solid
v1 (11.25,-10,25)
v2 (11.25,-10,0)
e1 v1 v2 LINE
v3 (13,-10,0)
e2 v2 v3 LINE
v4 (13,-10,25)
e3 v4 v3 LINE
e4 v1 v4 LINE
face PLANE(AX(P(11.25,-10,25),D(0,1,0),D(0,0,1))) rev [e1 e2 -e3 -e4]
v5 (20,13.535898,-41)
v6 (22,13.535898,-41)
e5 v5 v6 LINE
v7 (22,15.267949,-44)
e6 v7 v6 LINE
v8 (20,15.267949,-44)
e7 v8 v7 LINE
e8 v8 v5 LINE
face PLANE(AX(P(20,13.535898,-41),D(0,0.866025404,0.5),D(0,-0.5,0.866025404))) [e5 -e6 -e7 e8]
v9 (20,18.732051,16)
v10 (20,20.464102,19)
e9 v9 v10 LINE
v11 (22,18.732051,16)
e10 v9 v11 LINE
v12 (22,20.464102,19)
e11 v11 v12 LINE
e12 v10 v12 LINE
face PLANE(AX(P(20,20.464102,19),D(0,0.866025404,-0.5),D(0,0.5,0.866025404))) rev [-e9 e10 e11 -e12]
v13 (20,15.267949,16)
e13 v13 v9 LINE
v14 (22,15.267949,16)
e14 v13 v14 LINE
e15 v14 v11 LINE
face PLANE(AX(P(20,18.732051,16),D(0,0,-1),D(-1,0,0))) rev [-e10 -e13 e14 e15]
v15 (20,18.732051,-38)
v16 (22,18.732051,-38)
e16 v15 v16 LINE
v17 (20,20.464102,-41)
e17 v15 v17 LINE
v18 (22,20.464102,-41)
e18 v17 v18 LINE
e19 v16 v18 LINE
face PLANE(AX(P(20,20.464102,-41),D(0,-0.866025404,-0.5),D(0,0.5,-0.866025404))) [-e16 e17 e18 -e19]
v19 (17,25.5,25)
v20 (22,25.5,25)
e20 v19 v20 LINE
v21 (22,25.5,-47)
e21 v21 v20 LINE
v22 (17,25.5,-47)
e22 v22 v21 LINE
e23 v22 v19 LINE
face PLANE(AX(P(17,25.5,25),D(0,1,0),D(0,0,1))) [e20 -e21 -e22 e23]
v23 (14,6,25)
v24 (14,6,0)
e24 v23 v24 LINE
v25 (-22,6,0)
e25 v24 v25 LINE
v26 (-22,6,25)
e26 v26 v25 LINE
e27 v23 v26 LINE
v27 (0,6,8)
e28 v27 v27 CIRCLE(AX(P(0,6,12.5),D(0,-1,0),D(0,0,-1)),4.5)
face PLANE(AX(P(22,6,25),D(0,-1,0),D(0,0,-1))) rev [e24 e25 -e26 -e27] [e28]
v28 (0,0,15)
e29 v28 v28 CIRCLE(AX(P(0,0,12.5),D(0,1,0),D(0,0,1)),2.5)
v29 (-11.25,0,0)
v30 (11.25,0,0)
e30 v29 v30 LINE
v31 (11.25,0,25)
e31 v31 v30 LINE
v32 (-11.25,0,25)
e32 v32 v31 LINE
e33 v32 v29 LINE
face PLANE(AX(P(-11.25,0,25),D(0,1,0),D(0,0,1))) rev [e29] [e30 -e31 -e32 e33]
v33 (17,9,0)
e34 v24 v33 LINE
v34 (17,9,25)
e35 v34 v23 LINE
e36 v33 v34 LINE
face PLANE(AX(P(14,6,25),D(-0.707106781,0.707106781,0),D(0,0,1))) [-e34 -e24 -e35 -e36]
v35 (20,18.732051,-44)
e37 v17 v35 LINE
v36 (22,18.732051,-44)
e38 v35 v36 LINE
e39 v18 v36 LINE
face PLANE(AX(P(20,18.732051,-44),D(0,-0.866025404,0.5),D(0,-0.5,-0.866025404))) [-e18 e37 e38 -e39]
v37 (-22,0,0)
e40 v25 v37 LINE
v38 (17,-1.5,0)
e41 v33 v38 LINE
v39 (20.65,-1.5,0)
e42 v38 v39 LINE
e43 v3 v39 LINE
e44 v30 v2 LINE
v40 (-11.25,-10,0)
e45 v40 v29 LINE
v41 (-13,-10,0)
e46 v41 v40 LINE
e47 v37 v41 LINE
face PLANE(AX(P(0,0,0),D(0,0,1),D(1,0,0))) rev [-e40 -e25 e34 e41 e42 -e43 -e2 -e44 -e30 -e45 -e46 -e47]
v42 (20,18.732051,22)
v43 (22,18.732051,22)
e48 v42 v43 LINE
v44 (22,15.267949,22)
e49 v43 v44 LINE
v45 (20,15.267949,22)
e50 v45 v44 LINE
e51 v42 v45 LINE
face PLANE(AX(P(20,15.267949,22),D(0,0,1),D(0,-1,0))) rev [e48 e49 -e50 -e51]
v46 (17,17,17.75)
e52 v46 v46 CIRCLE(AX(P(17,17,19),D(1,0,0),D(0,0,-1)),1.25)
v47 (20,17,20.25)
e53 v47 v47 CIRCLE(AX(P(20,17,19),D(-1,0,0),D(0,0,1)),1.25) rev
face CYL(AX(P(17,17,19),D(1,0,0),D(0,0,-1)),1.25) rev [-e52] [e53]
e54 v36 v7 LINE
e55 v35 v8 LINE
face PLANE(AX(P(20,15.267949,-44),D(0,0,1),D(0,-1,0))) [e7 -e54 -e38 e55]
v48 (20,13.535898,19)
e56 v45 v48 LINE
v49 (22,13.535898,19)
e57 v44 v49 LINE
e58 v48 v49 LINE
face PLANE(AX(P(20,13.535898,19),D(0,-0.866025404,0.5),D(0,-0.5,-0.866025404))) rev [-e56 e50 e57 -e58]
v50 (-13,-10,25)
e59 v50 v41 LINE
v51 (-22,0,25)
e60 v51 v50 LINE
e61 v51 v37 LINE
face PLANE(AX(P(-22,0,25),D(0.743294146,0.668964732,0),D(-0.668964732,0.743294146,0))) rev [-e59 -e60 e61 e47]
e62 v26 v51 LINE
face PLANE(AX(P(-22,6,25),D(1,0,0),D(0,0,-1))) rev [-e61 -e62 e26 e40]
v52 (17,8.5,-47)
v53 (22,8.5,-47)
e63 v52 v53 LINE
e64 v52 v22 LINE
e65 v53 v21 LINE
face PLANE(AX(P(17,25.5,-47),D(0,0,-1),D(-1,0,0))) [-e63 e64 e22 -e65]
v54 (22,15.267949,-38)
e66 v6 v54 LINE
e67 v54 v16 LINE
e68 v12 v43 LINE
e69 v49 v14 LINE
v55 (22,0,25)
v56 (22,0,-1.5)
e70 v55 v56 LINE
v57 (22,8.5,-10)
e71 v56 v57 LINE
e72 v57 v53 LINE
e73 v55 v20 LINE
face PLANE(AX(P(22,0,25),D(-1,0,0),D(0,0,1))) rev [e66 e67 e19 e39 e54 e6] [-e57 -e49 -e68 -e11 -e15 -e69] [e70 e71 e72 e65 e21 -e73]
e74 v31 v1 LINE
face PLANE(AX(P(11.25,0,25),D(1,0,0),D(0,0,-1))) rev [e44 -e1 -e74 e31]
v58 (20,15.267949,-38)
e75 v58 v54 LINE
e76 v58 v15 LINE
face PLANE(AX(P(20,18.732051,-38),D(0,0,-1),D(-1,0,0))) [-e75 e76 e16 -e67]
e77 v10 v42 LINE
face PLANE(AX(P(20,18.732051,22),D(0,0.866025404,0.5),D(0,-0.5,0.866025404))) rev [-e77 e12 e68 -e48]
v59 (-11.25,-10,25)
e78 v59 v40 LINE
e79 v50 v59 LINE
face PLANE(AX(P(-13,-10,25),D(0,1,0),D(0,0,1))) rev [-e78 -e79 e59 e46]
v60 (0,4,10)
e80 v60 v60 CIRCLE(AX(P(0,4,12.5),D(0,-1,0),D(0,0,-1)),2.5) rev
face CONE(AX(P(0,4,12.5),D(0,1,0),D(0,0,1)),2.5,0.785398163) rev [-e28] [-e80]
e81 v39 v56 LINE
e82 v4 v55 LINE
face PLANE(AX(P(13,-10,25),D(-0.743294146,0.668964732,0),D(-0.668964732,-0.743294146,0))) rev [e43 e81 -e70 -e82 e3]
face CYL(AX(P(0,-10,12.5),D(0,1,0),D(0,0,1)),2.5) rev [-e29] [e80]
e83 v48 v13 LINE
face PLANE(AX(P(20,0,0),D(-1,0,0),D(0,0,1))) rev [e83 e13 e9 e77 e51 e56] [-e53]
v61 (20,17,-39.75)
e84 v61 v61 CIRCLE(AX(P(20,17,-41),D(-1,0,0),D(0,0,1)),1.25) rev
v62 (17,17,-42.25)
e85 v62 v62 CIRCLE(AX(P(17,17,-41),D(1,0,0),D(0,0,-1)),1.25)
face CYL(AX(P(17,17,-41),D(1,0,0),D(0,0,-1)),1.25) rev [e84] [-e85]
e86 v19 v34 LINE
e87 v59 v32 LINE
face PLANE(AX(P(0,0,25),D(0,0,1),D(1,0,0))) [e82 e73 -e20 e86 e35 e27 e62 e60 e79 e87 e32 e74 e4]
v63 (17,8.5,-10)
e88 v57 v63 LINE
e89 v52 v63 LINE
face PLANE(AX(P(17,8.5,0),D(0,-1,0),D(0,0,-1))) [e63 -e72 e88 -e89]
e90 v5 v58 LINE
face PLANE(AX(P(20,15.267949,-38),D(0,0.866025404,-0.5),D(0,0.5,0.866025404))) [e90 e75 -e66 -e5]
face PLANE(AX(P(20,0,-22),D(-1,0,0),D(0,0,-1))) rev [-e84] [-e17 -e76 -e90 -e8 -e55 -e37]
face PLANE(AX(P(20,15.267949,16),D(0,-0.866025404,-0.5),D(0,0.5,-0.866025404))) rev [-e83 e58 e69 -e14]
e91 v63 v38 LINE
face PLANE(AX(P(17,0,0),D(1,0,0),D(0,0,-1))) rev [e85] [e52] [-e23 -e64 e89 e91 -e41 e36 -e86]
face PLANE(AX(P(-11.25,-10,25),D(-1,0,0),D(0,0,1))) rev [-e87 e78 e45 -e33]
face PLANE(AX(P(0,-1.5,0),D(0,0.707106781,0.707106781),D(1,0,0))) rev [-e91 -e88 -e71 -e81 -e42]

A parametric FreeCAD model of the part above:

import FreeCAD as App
import Part
import Sketcher
from FreeCAD import Vector
Q = App.Units.Quantity


def edges_at(feature, points):
    """Names of the edges that pass closest to the given points."""
    edges = feature.Shape.Edges
    near = lambda p: min(range(len(edges)), key=lambda i: edges[i].distToShape(Part.Vertex(*p))[0])
    return sorted({f"Edge{near(p) + 1}" for p in points})

doc = App.newDocument("Part")
body = doc.addObject("PartDesign::Body", "Body")

# Sketch on XY plane
sketch1 = body.newObject("Sketcher::SketchObject", "Sketch")
sketch1.AttachmentSupport = (doc.getObject("XY_Plane"), [""])
sketch1.MapMode = "FlatFace"
sketch1.addGeometry([
    Part.LineSegment(Vector(-11.2, 0, 0), Vector(11.2, 0, 0)),  # 0
    Part.LineSegment(Vector(11.2, 0, 0), Vector(11.2, -10, 0)),  # 1
    Part.LineSegment(Vector(11.2, -10, 0), Vector(13, -10, 0)),  # 2
    Part.LineSegment(Vector(13, -10, 0), Vector(22, 0, 0)),  # 3
    Part.LineSegment(Vector(22, 0, 0), Vector(22, 6, 0)),  # 4
    Part.LineSegment(Vector(22, 6, 0), Vector(-22, 6, 0)),  # 5
    Part.LineSegment(Vector(-22, 6, 0), Vector(-22, 0, 0)),  # 6
    Part.LineSegment(Vector(-22, 0, 0), Vector(-13, -10, 0)),  # 7
    Part.LineSegment(Vector(-13, -10, 0), Vector(-11.2, -10, 0)),  # 8
    Part.LineSegment(Vector(-11.2, -10, 0), Vector(-11.2, 0, 0)),  # 9
], False)
sketch1.addConstraint([
    Sketcher.Constraint("Coincident", 0, 2, 1, 1),
    Sketcher.Constraint("Coincident", 1, 2, 2, 1),
    Sketcher.Constraint("Coincident", 2, 2, 3, 1),
    Sketcher.Constraint("Coincident", 3, 2, 4, 1),
    Sketcher.Constraint("Coincident", 4, 2, 5, 1),
    Sketcher.Constraint("Coincident", 5, 2, 6, 1),
    Sketcher.Constraint("Coincident", 6, 2, 7, 1),
    Sketcher.Constraint("Coincident", 7, 2, 8, 1),
    Sketcher.Constraint("Coincident", 8, 2, 9, 1),
    Sketcher.Constraint("Coincident", 9, 2, 0, 1),
    Sketcher.Constraint("Horizontal", 0),
    Sketcher.Constraint("Vertical", 1),
    Sketcher.Constraint("Horizontal", 2),
    Sketcher.Constraint("Vertical", 4),
    Sketcher.Constraint("Horizontal", 5),
    Sketcher.Constraint("Vertical", 6),
    Sketcher.Constraint("Horizontal", 8),
    Sketcher.Constraint("Vertical", 9),
    Sketcher.Constraint("Symmetric", 3, 2, 6, 2, -1, 1),
    Sketcher.Constraint("Symmetric", 0, 2, 9, 2, -1, 1),
    Sketcher.Constraint("Symmetric", 2, 2, 7, 2, -2),
    Sketcher.Constraint("PointOnObject", 3, 2, -1),
    Sketcher.Constraint("DistanceX", 5, 2, 5, 1, Q("44 mm")),
    Sketcher.Constraint("DistanceY", 1, 2, 1, 1, Q("10 mm")),
    Sketcher.Constraint("DistanceY", 4, 1, 4, 2, Q("6 mm")),
    Sketcher.Constraint("DistanceX", 0, 1, 0, 2, Q("22.5 mm")),
    Sketcher.Constraint("DistanceX", -1, 1, 2, 2, Q("13 mm")),
])
pad1 = body.newObject("PartDesign::Pad", "Pad")
pad1.Profile = sketch1
pad1.Length = 25

# Sketch on YZ plane
sketch2 = body.newObject("Sketcher::SketchObject", "Sketch001")
sketch2.AttachmentSupport = (doc.getObject("YZ_Plane"), [""])
sketch2.MapMode = "FlatFace"
sketch2.AttachmentOffset = App.Placement(Vector(0, 0, 22), App.Rotation())
sketch2.addGeometry([
    Part.LineSegment(Vector(6, 25, 0), Vector(6, 0, 0)),  # 0
    Part.LineSegment(Vector(6, 0, 0), Vector(8.5, 0, 0)),  # 1
    Part.LineSegment(Vector(8.5, 0, 0), Vector(8.5, -47, 0)),  # 2
    Part.LineSegment(Vector(8.5, -47, 0), Vector(25.5, -47, 0)),  # 3
    Part.LineSegment(Vector(25.5, -47, 0), Vector(25.5, 25, 0)),  # 4
    Part.LineSegment(Vector(25.5, 25, 0), Vector(6, 25, 0)),  # 5
    Part.Circle(Vector(17, 19, 0), Vector(0, 0, 1), 1.2),  # 6
    Part.Circle(Vector(17, -41, 0), Vector(0, 0, 1), 1.2),  # 7
], False)
sketch2.addConstraint([
    Sketcher.Constraint("Coincident", 0, 2, 1, 1),
    Sketcher.Constraint("Coincident", 1, 2, 2, 1),
    Sketcher.Constraint("Coincident", 2, 2, 3, 1),
    Sketcher.Constraint("Coincident", 3, 2, 4, 1),
    Sketcher.Constraint("Coincident", 4, 2, 5, 1),
    Sketcher.Constraint("Coincident", 5, 2, 0, 1),
    Sketcher.Constraint("Vertical", 0),
    Sketcher.Constraint("Horizontal", 1),
    Sketcher.Constraint("Vertical", 2),
    Sketcher.Constraint("Horizontal", 3),
    Sketcher.Constraint("Vertical", 4),
    Sketcher.Constraint("Horizontal", 5),
    Sketcher.Constraint("Equal", 6, 7),
    Sketcher.Constraint("PointOnObject", 0, 2, -1),
    Sketcher.Constraint("Vertical", 6, 3, 7, 3),
    Sketcher.Constraint("Diameter", 6, Q("2.5 mm")),
    Sketcher.Constraint("DistanceX", 3, 1, 3, 2, Q("17 mm")),
    Sketcher.Constraint("DistanceY", 0, 2, 0, 1, Q("25 mm")),
    Sketcher.Constraint("DistanceY", 2, 2, 2, 1, Q("47 mm")),
    Sketcher.Constraint("DistanceX", 1, 1, 1, 2, Q("2.5 mm")),
    Sketcher.Constraint("DistanceX", -1, 1, 6, 3, Q("17 mm")),
    Sketcher.Constraint("DistanceY", -1, 1, 6, 3, Q("19 mm")),
    Sketcher.Constraint("DistanceY", 7, 3, -1, 1, Q("41 mm")),
    Sketcher.Constraint("DistanceX", -1, 1, 0, 2, Q("6 mm")),
])
pad2 = body.newObject("PartDesign::Pad", "Pad001")
pad2.Profile = sketch2
pad2.Length = 5
pad2.Reversed = True

# Sketch on XZ plane
sketch3 = body.newObject("Sketcher::SketchObject", "Sketch002")
sketch3.AttachmentSupport = (doc.getObject("XZ_Plane"), [""])
sketch3.MapMode = "FlatFace"
sketch3.AttachmentOffset = App.Placement(Vector(0, 0, -6), App.Rotation())
sketch3.addGeometry(Part.Circle(Vector(0, 12.5, 0), Vector(0, 0, 1), 2.5), False)
sketch3.addConstraint([
    Sketcher.Constraint("PointOnObject", 0, 3, -2),
    Sketcher.Constraint("Diameter", 0, Q("5 mm")),
    Sketcher.Constraint("DistanceY", -1, 1, 0, 3, Q("12.5 mm")),
])
pocket1 = body.newObject("PartDesign::Pocket", "Pocket")
pocket1.Profile = sketch3
pocket1.Type = "ThroughAll"
pocket1.Reversed = True
doc.recompute()

chamfer = body.newObject("PartDesign::Chamfer", "Chamfer")
chamfer.Base = (pocket1, edges_at(pocket1, [(0, 6, 10)]))
chamfer.Size = 2

# Sketch on YZ plane
sketch4 = body.newObject("Sketcher::SketchObject", "Sketch003")
sketch4.AttachmentSupport = (doc.getObject("YZ_Plane"), [""])
sketch4.MapMode = "FlatFace"
sketch4.AttachmentOffset = App.Placement(Vector(0, 0, 22), App.Rotation())
sketch4.addGeometry([
    Part.LineSegment(Vector(15.3, 16, 0), Vector(18.7, 16, 0)),  # 0
    Part.LineSegment(Vector(18.7, 16, 0), Vector(20.5, 19, 0)),  # 1
    Part.LineSegment(Vector(20.5, 19, 0), Vector(18.7, 22, 0)),  # 2
    Part.LineSegment(Vector(18.7, 22, 0), Vector(15.3, 22, 0)),  # 3
    Part.LineSegment(Vector(15.3, 22, 0), Vector(13.5, 19, 0)),  # 4
    Part.LineSegment(Vector(13.5, 19, 0), Vector(15.3, 16, 0)),  # 5
], False)
sketch4.addConstraint([
    Sketcher.Constraint("Coincident", 0, 2, 1, 1),
    Sketcher.Constraint("Coincident", 1, 2, 2, 1),
    Sketcher.Constraint("Coincident", 2, 2, 3, 1),
    Sketcher.Constraint("Coincident", 3, 2, 4, 1),
    Sketcher.Constraint("Coincident", 4, 2, 5, 1),
    Sketcher.Constraint("Coincident", 5, 2, 0, 1),
    Sketcher.Constraint("Horizontal", 0),
    Sketcher.Constraint("Horizontal", 3),
    Sketcher.Constraint("Parallel", 1, 4),
    Sketcher.Constraint("Parallel", 2, 5),
    Sketcher.Constraint("Horizontal", 1, 2, 4, 2),
    Sketcher.Constraint("Vertical", 0, 2, 2, 2),
    Sketcher.Constraint("Vertical", 3, 2, 5, 2),
    Sketcher.Constraint("Angle", 1, Q("60 deg")),
    Sketcher.Constraint("DistanceY", -1, 1, 0, 2, Q("16 mm")),
    Sketcher.Constraint("DistanceY", -1, 1, 1, 2, Q("19 mm")),
    Sketcher.Constraint("DistanceX", 0, 1, 0, 2, Q("3.464102 mm")),
    Sketcher.Constraint("DistanceX", -1, 1, 1, 2, Q("20.464102 mm")),
])
pocket2 = body.newObject("PartDesign::Pocket", "Pocket001")
pocket2.Profile = sketch4
pocket2.Length = 2
doc.recompute()

datumplane = body.newObject("PartDesign::Plane", "DatumPlane")
datumplane.AttachmentSupport = (doc.getObject("XY_Plane"), [""])
datumplane.MapMode = "FlatFace"
datumplane.AttachmentOffset = App.Placement(Vector(0, 0, -11), App.Rotation())
mirrored = body.newObject("PartDesign::Mirrored", "Mirrored")
mirrored.Originals = [pocket2]
mirrored.MirrorPlane = (datumplane, [""])
body.Tip = mirrored
doc.recompute()

chamfer2 = body.newObject("PartDesign::Chamfer", "Chamfer001")
chamfer2.Base = (mirrored, edges_at(mirrored, [(17, 6, 12.5)]))
chamfer2.Size = 3

# Sketch on XZ plane
sketch5 = body.newObject("Sketcher::SketchObject", "Sketch004")
sketch5.AttachmentSupport = (doc.getObject("XZ_Plane"), [""])
sketch5.MapMode = "FlatFace"
sketch5.AttachmentOffset = App.Placement(Vector(0, 0, -8.5), App.Rotation())
sketch5.addGeometry([
    Part.LineSegment(Vector(16.5, 0, 0), Vector(16.5, -47, 0)),
    Part.LineSegment(Vector(16.5, -47, 0), Vector(17, -47, 0)),
    Part.LineSegment(Vector(17, -47, 0), Vector(17, 0, 0)),
    Part.LineSegment(Vector(17, 0, 0), Vector(16.5, 0, 0)),
], False)
sketch5.addConstraint([
    Sketcher.Constraint("Coincident", 0, 2, 1, 1),
    Sketcher.Constraint("Coincident", 1, 2, 2, 1),
    Sketcher.Constraint("Coincident", 2, 2, 3, 1),
    Sketcher.Constraint("Coincident", 3, 2, 0, 1),
    Sketcher.Constraint("Vertical", 0),
    Sketcher.Constraint("Horizontal", 1),
    Sketcher.Constraint("Vertical", 2),
    Sketcher.Constraint("Horizontal", 3),
    Sketcher.Constraint("PointOnObject", 2, 2, -1),
    Sketcher.Constraint("DistanceY", 0, 2, 0, 1, Q("47 mm")),
    Sketcher.Constraint("DistanceX", 1, 1, 1, 2, Q("0.5 mm")),
    Sketcher.Constraint("DistanceX", -1, 1, 1, 2, Q("17 mm")),
])
pocket3 = body.newObject("PartDesign::Pocket", "Pocket002")
pocket3.Profile = sketch5
pocket3.Type = "ThroughAll"
doc.recompute()

chamfer3 = body.newObject("PartDesign::Chamfer", "Chamfer002")
chamfer3.Base = (pocket3, edges_at(pocket3, [(19.5, 8.5, 0)]))
chamfer3.Size = 10

doc.recompute()
